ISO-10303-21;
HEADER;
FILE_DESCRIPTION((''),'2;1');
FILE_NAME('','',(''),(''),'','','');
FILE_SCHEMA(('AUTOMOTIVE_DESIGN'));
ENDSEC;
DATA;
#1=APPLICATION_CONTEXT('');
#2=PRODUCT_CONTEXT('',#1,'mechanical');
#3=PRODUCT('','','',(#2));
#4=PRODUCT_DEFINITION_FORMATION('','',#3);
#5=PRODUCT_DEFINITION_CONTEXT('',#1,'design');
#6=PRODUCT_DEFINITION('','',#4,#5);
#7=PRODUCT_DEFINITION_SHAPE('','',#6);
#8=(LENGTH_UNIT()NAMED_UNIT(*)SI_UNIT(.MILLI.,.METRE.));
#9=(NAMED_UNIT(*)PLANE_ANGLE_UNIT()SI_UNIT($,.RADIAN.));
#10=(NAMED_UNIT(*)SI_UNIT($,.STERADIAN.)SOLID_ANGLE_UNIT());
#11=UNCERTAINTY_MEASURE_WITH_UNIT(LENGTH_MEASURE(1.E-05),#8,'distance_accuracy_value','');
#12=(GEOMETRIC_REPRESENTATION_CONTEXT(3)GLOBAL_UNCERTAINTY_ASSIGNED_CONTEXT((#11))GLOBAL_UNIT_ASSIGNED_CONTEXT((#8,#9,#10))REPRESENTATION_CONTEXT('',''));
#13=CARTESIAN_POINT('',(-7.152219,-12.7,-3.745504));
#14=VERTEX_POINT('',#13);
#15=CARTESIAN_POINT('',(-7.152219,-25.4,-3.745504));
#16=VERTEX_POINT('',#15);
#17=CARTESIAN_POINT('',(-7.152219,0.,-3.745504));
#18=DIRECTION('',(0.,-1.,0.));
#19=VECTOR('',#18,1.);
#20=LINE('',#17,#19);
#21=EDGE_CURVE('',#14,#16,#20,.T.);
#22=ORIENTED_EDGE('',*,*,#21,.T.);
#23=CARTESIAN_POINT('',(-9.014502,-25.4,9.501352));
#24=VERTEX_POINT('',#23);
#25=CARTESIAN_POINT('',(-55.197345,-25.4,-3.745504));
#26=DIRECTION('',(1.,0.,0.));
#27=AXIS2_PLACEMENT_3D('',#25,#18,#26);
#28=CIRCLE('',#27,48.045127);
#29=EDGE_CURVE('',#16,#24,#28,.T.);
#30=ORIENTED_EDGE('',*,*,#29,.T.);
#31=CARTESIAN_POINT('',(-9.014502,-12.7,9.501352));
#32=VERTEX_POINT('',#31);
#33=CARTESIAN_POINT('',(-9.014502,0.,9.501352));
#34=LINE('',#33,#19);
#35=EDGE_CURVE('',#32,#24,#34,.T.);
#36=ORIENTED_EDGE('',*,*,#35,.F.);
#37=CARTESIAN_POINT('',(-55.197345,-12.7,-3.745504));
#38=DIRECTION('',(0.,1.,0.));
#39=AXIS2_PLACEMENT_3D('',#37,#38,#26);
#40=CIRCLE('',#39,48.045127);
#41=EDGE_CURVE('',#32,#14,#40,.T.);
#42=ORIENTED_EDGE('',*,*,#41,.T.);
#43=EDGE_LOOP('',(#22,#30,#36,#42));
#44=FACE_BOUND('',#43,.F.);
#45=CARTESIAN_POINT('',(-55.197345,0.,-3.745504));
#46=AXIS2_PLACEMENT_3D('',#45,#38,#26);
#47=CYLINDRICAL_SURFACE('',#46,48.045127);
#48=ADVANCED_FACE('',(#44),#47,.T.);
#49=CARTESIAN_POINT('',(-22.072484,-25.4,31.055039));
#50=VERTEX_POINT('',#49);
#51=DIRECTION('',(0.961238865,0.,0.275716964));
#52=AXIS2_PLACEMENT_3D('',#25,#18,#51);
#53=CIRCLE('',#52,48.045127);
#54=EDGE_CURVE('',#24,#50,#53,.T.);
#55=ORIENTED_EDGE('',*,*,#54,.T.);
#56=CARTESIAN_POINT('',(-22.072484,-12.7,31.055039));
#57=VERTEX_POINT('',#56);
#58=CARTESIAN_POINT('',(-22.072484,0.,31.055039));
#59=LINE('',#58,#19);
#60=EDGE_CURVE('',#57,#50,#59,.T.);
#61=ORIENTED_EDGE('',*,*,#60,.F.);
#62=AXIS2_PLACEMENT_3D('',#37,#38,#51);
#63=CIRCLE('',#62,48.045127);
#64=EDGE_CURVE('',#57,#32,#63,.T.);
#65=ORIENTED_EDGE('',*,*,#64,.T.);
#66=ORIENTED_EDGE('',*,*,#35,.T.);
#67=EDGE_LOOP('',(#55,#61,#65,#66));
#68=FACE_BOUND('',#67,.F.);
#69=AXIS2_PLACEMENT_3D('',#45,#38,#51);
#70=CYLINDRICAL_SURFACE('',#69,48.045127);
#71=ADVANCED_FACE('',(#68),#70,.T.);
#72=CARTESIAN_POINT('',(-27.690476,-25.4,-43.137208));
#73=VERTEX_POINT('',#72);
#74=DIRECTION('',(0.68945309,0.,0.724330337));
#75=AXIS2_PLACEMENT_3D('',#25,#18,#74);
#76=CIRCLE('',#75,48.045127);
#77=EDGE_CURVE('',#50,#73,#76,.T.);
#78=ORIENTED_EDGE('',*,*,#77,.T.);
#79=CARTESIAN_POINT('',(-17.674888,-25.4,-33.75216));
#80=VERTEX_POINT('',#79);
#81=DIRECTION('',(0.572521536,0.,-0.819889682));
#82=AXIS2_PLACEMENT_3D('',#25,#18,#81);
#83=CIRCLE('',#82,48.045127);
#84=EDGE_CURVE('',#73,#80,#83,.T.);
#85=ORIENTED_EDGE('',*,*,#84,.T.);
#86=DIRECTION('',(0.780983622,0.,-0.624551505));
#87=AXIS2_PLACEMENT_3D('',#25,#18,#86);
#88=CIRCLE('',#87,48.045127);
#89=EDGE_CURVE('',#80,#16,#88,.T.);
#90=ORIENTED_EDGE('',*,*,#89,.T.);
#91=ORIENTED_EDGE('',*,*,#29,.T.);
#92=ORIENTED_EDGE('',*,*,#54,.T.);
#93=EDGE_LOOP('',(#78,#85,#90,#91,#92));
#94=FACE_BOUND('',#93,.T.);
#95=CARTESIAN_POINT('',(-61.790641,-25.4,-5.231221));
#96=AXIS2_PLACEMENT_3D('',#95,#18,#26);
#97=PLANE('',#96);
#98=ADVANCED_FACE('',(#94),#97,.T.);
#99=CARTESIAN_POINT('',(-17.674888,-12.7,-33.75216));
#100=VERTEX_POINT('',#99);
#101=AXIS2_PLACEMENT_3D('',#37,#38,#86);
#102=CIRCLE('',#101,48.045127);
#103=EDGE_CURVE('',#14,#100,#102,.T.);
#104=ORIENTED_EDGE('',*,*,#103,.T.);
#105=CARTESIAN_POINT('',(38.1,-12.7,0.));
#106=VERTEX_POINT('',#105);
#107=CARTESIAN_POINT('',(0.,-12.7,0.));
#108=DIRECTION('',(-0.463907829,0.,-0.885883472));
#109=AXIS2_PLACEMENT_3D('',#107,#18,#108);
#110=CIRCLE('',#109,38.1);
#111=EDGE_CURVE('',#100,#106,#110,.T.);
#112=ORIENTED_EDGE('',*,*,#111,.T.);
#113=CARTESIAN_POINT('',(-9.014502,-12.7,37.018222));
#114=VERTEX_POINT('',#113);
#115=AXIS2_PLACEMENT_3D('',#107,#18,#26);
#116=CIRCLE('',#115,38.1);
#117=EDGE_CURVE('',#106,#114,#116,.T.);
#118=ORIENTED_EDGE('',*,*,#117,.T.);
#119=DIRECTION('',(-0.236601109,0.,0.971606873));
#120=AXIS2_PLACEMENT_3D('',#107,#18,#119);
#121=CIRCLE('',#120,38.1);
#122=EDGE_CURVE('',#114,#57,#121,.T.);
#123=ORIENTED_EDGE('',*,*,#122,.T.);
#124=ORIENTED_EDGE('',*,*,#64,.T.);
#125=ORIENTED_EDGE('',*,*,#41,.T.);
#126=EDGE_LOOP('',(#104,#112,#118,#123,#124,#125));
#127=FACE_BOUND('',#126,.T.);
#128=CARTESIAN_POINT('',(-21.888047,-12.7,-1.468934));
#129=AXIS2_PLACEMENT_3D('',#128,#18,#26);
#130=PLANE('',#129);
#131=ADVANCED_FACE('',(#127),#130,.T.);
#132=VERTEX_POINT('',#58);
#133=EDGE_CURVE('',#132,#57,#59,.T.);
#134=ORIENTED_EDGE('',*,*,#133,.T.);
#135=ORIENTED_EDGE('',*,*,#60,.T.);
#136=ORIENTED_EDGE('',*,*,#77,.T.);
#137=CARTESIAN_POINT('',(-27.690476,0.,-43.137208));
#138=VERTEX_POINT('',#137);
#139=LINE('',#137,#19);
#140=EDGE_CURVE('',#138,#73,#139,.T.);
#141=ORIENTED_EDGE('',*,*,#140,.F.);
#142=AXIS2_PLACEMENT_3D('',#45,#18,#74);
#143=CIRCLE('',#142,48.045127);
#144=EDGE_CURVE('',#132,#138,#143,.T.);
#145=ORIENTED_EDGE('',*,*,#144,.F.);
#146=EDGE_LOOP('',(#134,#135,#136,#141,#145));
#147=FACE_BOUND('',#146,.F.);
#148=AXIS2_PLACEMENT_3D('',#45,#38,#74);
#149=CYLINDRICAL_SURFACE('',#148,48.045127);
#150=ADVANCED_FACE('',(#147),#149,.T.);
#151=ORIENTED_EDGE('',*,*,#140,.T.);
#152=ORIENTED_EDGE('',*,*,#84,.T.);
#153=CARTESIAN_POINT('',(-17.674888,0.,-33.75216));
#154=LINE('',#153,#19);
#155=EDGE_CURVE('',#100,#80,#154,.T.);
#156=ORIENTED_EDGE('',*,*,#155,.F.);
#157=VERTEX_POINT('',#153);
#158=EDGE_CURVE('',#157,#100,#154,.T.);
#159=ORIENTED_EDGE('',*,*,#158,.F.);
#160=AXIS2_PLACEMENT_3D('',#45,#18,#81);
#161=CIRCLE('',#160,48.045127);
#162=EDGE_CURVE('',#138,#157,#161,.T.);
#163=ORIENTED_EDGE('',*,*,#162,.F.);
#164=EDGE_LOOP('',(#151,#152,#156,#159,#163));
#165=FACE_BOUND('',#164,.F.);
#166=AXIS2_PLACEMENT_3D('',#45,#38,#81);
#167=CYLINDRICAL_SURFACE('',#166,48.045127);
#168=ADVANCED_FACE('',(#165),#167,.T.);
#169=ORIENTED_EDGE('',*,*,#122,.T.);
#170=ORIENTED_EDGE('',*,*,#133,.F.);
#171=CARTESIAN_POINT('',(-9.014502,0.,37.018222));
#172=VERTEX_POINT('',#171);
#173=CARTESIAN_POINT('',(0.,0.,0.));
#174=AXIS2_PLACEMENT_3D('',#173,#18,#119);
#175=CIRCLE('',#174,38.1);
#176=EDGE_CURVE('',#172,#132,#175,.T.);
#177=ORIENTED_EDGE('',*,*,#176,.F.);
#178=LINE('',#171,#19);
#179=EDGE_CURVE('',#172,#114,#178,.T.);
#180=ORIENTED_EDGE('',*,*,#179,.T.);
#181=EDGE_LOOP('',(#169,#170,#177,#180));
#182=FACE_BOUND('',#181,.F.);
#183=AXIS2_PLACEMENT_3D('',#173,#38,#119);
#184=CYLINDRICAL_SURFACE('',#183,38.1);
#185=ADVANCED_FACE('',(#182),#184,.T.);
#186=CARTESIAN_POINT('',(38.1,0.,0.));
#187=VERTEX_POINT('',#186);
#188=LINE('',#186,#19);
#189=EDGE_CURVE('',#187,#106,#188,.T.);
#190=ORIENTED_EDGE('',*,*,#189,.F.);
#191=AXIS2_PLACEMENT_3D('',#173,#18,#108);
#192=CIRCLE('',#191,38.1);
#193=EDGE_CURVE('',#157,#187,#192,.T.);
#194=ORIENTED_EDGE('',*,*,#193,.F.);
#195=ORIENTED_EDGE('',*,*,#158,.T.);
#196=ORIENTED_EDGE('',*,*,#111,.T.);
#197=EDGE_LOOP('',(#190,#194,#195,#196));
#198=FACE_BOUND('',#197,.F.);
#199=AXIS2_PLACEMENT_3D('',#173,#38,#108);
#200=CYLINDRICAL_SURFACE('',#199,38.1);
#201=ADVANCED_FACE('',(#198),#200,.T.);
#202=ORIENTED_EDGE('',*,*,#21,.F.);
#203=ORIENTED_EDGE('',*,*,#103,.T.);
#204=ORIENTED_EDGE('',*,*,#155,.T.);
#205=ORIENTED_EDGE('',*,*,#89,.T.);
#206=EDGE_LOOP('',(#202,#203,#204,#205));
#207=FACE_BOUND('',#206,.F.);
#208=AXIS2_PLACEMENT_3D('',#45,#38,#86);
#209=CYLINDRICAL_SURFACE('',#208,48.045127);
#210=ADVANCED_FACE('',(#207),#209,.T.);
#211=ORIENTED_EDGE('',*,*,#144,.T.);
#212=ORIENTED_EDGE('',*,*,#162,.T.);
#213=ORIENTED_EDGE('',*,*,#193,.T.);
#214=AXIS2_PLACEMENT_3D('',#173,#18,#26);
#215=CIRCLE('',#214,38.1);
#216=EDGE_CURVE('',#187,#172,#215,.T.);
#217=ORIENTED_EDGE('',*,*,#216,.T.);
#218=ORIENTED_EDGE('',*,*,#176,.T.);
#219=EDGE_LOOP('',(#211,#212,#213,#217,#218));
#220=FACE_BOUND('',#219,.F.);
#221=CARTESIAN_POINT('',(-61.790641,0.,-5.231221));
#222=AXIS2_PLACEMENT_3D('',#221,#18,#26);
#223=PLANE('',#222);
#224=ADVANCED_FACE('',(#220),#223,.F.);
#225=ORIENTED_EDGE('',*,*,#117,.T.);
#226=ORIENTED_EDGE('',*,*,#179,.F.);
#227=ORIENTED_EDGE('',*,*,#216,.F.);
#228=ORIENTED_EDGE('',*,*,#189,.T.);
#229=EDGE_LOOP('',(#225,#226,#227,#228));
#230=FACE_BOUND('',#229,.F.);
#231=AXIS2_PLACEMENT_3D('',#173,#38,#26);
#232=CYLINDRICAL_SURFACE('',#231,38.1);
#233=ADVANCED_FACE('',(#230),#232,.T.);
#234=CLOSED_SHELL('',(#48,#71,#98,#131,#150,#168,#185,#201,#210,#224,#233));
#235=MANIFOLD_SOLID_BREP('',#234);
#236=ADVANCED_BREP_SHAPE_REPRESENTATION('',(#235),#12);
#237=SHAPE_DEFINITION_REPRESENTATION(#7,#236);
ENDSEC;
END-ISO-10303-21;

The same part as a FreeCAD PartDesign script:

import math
import FreeCAD as App
import Part
import Sketcher
Q = App.Units.Quantity

doc = App.newDocument("Part")
params = doc.addObject("Spreadsheet::Sheet", "Params")
for row, (alias, value) in enumerate([
    ("pad1_length", "1 in"),
    ("sketch2_radius", "1.5 in"),
    ("pad2_length", "0.5 in"),
], start=1):
    params.set(f"A{row}", alias)
    params.set(f"B{row}", "=" + value)
    params.setAlias(f"B{row}", alias)

body = doc.addObject("PartDesign::Body", "Body")

sketch1 = body.newObject("Sketcher::SketchObject", "Sketch")
sketch1.AttachmentSupport = (doc.getObject("XZ_Plane"), [""])
sketch1.MapMode = "FlatFace"
sketch1.addGeometry(Part.ArcOfCircle(Part.Circle(App.Vector(-55, -4, 0), App.Vector(0, 0, 1), 48), math.radians(46), math.radians(305)), False)
sketch1.addGeometry(Part.ArcOfCircle(Part.Circle(App.Vector(-55, -4, 0), App.Vector(0, 0, 1), 48), math.radians(-55.07), math.radians(-38.65)), False)
sketch1.addGeometry(Part.ArcOfCircle(Part.Circle(App.Vector(-55, -4, 0), App.Vector(0, 0, 1), 48), math.radians(-39), math.radians(0)), False)
sketch1.addGeometry(Part.ArcOfCircle(Part.Circle(App.Vector(-55, -4, 0), App.Vector(0, 0, 1), 48), math.radians(0), math.radians(16)), False)
sketch1.addGeometry(Part.ArcOfCircle(Part.Circle(App.Vector(-55, -4, 0), App.Vector(0, 0, 1), 48), math.radians(16), math.radians(46)), False)
sketch1.addConstraint(Sketcher.Constraint("Tangent", 0, 2, 1, 1))
sketch1.addConstraint(Sketcher.Constraint("Tangent", 1, 2, 2, 1))
sketch1.addConstraint(Sketcher.Constraint("Tangent", 2, 2, 3, 1))
sketch1.addConstraint(Sketcher.Constraint("Tangent", 3, 2, 4, 1))
sketch1.addConstraint(Sketcher.Constraint("Tangent", 4, 2, 0, 1))
sketch1.addConstraint(Sketcher.Constraint("Coincident", 2, 3, 0, 3))
sketch1.addConstraint(Sketcher.Constraint("Horizontal", 4, 3, 2, 2))
sketch1.addConstraint(Sketcher.Constraint("Radius", 0, Q("48.045127 mm")))
sketch1.addConstraint(Sketcher.Constraint("DistanceY", 2, 2, 4, 2, Q("1.3701001 in")))
sketch1.addConstraint(Sketcher.Constraint("DistanceX", 1, 2, -1, 1, Q("17.674888 mm")))
sketch1.addConstraint(Sketcher.Constraint("DistanceY", 1, 2, -1, 1, Q("33.75216 mm")))
sketch1.addConstraint(Sketcher.Constraint("DistanceX", 2, 2, -1, 1, Q("7.152219 mm")))
sketch1.addConstraint(Sketcher.Constraint("DistanceX", 1, 3, 0, 2, Q("27.50687 mm")))
sketch1.addConstraint(Sketcher.Constraint("DistanceX", 3, 2, -1, 1, Q("9.014502 mm")))
pad1 = body.newObject("PartDesign::Pad", "Pad")
pad1.Profile = sketch1
pad1.setExpression("Length", "Params.pad1_length")

sketch2 = body.newObject("Sketcher::SketchObject", "Sketch001")
sketch2.AttachmentSupport = (doc.getObject("XZ_Plane"), [""])
sketch2.MapMode = "FlatFace"
sketch2.addGeometry(Part.ArcOfCircle(Part.Circle(App.Vector(0, 0, 0), App.Vector(0, 0, 1), 38), math.radians(-150), math.radians(-118)), False)
sketch2.addGeometry(Part.ArcOfCircle(Part.Circle(App.Vector(0, 0, 0), App.Vector(0, 0, 1), 38), math.radians(-118), math.radians(0)), False)
sketch2.addGeometry(Part.ArcOfCircle(Part.Circle(App.Vector(0, 0, 0), App.Vector(0, 0, 1), 38), math.radians(0), math.radians(104)), False)
sketch2.addGeometry(Part.ArcOfCircle(Part.Circle(App.Vector(0, 0, 0), App.Vector(0, 0, 1), 38), math.radians(104), math.radians(125)), False)
sketch2.addGeometry(Part.ArcOfCircle(Part.Circle(App.Vector(0, 0, 0), App.Vector(0, 0, 1), 38), math.radians(125), math.radians(176)), False)
sketch2.addGeometry(Part.ArcOfCircle(Part.Circle(App.Vector(0, 0, 0), App.Vector(0, 0, 1), 38), math.radians(176), math.radians(210)), False)
sketch2.addConstraint(Sketcher.Constraint("Tangent", 0, 2, 1, 1))
sketch2.addConstraint(Sketcher.Constraint("Tangent", 1, 2, 2, 1))
sketch2.addConstraint(Sketcher.Constraint("Tangent", 2, 2, 3, 1))
sketch2.addConstraint(Sketcher.Constraint("Tangent", 3, 2, 4, 1))
sketch2.addConstraint(Sketcher.Constraint("Tangent", 4, 2, 5, 1))
sketch2.addConstraint(Sketcher.Constraint("Tangent", 5, 2, 0, 1))
sketch2.addConstraint(Sketcher.Constraint("Coincident", 0, 3, -1, 1))
sketch2.addConstraint(Sketcher.Constraint("Coincident", 2, 3, -1, 1))
sketch2.addConstraint(Sketcher.Constraint("Equal", 2, 3))
sketch2.addConstraint(Sketcher.Constraint("PointOnObject", 1, 2, -1))
sketch2.addConstraint(Sketcher.Constraint("Radius", 0, Q("1.5 in")))
sketch2.addConstraint(Sketcher.Constraint("DistanceY", 4, 2, 3, 2, Q("28.184599 mm")))
sketch2.addConstraint(Sketcher.Constraint("DistanceX", 0, 2, -1, 1, Q("17.674888 mm")))
sketch2.addConstraint(Sketcher.Constraint("DistanceY", -1, 1, 2, 2, Q("37.018222 mm")))
sketch2.addConstraint(Sketcher.Constraint("DistanceY", -1, 1, 3, 2, Q("31.055039 mm")))
sketch2.addConstraint(Sketcher.Constraint("DistanceX", 5, 2, -1, 1, Q("33.140295 mm")))
sketch2.setExpression("Constraints[10]", "Params.sketch2_radius")
pad2 = body.newObject("PartDesign::Pad", "Pad001")
pad2.Profile = sketch2
pad2.setExpression("Length", "Params.pad2_length")

doc.recompute()
